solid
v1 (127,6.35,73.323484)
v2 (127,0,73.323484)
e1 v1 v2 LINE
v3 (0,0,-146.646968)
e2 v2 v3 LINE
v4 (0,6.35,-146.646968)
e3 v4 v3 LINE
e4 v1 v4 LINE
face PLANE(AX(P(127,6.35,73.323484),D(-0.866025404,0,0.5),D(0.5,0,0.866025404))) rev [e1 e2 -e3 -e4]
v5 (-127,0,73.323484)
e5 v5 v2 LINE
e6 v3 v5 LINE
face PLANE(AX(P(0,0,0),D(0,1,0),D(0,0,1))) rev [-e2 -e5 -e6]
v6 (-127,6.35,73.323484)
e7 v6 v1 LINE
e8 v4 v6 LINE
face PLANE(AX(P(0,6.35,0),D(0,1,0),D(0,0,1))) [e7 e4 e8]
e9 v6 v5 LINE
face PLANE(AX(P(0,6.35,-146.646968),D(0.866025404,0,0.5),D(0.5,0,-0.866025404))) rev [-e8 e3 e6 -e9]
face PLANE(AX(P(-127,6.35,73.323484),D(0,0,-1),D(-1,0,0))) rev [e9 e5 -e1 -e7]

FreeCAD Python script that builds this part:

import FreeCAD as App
import Part
import Sketcher
Q = App.Units.Quantity

doc = App.newDocument("Part")
body = doc.addObject("PartDesign::Body", "Body")

# Sketch on XZ plane
sketch1 = doc.addObject("Sketcher::SketchObject", "Sketch")
body.addObject(sketch1)
sketch1.AttachmentSupport = (doc.XZ_Plane, [""])
sketch1.MapMode = "FlatFace"
sketch1.addGeometry(Part.LineSegment(App.Vector(0, -147, 0), App.Vector(-127, 73, 0)), False)
sketch1.addGeometry(Part.LineSegment(App.Vector(-127, 73, 0), App.Vector(127, 73, 0)), False)
sketch1.addGeometry(Part.LineSegment(App.Vector(127, 73, 0), App.Vector(0, -147, 0)), False)
sketch1.addConstraint(Sketcher.Constraint("Coincident", 0, 2, 1, 1))
sketch1.addConstraint(Sketcher.Constraint("Coincident", 1, 2, 2, 1))
sketch1.addConstraint(Sketcher.Constraint("Coincident", 2, 2, 0, 1))
sketch1.addConstraint(Sketcher.Constraint("Horizontal", 1))
sketch1.addConstraint(Sketcher.Constraint("PointOnObject", 2, 2, -2))
sketch1.addConstraint(Sketcher.Constraint("Equal", 0, 2))
sketch1.addConstraint(Sketcher.Constraint("DistanceX", 1, 1, 1, 2, Q("10 in")))
sketch1.addConstraint(Sketcher.Constraint("Distance", 0, Q("10 in")))
sketch1.addConstraint(Sketcher.Constraint("DistanceY", 2, 2, -1, 1, 146.646968))
pad1 = doc.addObject("PartDesign::Pad", "Pad")
body.addObject(pad1)
pad1.Profile = sketch1
pad1.Length = Q("0.25 in")
pad1.Reversed = True

doc.recompute()
